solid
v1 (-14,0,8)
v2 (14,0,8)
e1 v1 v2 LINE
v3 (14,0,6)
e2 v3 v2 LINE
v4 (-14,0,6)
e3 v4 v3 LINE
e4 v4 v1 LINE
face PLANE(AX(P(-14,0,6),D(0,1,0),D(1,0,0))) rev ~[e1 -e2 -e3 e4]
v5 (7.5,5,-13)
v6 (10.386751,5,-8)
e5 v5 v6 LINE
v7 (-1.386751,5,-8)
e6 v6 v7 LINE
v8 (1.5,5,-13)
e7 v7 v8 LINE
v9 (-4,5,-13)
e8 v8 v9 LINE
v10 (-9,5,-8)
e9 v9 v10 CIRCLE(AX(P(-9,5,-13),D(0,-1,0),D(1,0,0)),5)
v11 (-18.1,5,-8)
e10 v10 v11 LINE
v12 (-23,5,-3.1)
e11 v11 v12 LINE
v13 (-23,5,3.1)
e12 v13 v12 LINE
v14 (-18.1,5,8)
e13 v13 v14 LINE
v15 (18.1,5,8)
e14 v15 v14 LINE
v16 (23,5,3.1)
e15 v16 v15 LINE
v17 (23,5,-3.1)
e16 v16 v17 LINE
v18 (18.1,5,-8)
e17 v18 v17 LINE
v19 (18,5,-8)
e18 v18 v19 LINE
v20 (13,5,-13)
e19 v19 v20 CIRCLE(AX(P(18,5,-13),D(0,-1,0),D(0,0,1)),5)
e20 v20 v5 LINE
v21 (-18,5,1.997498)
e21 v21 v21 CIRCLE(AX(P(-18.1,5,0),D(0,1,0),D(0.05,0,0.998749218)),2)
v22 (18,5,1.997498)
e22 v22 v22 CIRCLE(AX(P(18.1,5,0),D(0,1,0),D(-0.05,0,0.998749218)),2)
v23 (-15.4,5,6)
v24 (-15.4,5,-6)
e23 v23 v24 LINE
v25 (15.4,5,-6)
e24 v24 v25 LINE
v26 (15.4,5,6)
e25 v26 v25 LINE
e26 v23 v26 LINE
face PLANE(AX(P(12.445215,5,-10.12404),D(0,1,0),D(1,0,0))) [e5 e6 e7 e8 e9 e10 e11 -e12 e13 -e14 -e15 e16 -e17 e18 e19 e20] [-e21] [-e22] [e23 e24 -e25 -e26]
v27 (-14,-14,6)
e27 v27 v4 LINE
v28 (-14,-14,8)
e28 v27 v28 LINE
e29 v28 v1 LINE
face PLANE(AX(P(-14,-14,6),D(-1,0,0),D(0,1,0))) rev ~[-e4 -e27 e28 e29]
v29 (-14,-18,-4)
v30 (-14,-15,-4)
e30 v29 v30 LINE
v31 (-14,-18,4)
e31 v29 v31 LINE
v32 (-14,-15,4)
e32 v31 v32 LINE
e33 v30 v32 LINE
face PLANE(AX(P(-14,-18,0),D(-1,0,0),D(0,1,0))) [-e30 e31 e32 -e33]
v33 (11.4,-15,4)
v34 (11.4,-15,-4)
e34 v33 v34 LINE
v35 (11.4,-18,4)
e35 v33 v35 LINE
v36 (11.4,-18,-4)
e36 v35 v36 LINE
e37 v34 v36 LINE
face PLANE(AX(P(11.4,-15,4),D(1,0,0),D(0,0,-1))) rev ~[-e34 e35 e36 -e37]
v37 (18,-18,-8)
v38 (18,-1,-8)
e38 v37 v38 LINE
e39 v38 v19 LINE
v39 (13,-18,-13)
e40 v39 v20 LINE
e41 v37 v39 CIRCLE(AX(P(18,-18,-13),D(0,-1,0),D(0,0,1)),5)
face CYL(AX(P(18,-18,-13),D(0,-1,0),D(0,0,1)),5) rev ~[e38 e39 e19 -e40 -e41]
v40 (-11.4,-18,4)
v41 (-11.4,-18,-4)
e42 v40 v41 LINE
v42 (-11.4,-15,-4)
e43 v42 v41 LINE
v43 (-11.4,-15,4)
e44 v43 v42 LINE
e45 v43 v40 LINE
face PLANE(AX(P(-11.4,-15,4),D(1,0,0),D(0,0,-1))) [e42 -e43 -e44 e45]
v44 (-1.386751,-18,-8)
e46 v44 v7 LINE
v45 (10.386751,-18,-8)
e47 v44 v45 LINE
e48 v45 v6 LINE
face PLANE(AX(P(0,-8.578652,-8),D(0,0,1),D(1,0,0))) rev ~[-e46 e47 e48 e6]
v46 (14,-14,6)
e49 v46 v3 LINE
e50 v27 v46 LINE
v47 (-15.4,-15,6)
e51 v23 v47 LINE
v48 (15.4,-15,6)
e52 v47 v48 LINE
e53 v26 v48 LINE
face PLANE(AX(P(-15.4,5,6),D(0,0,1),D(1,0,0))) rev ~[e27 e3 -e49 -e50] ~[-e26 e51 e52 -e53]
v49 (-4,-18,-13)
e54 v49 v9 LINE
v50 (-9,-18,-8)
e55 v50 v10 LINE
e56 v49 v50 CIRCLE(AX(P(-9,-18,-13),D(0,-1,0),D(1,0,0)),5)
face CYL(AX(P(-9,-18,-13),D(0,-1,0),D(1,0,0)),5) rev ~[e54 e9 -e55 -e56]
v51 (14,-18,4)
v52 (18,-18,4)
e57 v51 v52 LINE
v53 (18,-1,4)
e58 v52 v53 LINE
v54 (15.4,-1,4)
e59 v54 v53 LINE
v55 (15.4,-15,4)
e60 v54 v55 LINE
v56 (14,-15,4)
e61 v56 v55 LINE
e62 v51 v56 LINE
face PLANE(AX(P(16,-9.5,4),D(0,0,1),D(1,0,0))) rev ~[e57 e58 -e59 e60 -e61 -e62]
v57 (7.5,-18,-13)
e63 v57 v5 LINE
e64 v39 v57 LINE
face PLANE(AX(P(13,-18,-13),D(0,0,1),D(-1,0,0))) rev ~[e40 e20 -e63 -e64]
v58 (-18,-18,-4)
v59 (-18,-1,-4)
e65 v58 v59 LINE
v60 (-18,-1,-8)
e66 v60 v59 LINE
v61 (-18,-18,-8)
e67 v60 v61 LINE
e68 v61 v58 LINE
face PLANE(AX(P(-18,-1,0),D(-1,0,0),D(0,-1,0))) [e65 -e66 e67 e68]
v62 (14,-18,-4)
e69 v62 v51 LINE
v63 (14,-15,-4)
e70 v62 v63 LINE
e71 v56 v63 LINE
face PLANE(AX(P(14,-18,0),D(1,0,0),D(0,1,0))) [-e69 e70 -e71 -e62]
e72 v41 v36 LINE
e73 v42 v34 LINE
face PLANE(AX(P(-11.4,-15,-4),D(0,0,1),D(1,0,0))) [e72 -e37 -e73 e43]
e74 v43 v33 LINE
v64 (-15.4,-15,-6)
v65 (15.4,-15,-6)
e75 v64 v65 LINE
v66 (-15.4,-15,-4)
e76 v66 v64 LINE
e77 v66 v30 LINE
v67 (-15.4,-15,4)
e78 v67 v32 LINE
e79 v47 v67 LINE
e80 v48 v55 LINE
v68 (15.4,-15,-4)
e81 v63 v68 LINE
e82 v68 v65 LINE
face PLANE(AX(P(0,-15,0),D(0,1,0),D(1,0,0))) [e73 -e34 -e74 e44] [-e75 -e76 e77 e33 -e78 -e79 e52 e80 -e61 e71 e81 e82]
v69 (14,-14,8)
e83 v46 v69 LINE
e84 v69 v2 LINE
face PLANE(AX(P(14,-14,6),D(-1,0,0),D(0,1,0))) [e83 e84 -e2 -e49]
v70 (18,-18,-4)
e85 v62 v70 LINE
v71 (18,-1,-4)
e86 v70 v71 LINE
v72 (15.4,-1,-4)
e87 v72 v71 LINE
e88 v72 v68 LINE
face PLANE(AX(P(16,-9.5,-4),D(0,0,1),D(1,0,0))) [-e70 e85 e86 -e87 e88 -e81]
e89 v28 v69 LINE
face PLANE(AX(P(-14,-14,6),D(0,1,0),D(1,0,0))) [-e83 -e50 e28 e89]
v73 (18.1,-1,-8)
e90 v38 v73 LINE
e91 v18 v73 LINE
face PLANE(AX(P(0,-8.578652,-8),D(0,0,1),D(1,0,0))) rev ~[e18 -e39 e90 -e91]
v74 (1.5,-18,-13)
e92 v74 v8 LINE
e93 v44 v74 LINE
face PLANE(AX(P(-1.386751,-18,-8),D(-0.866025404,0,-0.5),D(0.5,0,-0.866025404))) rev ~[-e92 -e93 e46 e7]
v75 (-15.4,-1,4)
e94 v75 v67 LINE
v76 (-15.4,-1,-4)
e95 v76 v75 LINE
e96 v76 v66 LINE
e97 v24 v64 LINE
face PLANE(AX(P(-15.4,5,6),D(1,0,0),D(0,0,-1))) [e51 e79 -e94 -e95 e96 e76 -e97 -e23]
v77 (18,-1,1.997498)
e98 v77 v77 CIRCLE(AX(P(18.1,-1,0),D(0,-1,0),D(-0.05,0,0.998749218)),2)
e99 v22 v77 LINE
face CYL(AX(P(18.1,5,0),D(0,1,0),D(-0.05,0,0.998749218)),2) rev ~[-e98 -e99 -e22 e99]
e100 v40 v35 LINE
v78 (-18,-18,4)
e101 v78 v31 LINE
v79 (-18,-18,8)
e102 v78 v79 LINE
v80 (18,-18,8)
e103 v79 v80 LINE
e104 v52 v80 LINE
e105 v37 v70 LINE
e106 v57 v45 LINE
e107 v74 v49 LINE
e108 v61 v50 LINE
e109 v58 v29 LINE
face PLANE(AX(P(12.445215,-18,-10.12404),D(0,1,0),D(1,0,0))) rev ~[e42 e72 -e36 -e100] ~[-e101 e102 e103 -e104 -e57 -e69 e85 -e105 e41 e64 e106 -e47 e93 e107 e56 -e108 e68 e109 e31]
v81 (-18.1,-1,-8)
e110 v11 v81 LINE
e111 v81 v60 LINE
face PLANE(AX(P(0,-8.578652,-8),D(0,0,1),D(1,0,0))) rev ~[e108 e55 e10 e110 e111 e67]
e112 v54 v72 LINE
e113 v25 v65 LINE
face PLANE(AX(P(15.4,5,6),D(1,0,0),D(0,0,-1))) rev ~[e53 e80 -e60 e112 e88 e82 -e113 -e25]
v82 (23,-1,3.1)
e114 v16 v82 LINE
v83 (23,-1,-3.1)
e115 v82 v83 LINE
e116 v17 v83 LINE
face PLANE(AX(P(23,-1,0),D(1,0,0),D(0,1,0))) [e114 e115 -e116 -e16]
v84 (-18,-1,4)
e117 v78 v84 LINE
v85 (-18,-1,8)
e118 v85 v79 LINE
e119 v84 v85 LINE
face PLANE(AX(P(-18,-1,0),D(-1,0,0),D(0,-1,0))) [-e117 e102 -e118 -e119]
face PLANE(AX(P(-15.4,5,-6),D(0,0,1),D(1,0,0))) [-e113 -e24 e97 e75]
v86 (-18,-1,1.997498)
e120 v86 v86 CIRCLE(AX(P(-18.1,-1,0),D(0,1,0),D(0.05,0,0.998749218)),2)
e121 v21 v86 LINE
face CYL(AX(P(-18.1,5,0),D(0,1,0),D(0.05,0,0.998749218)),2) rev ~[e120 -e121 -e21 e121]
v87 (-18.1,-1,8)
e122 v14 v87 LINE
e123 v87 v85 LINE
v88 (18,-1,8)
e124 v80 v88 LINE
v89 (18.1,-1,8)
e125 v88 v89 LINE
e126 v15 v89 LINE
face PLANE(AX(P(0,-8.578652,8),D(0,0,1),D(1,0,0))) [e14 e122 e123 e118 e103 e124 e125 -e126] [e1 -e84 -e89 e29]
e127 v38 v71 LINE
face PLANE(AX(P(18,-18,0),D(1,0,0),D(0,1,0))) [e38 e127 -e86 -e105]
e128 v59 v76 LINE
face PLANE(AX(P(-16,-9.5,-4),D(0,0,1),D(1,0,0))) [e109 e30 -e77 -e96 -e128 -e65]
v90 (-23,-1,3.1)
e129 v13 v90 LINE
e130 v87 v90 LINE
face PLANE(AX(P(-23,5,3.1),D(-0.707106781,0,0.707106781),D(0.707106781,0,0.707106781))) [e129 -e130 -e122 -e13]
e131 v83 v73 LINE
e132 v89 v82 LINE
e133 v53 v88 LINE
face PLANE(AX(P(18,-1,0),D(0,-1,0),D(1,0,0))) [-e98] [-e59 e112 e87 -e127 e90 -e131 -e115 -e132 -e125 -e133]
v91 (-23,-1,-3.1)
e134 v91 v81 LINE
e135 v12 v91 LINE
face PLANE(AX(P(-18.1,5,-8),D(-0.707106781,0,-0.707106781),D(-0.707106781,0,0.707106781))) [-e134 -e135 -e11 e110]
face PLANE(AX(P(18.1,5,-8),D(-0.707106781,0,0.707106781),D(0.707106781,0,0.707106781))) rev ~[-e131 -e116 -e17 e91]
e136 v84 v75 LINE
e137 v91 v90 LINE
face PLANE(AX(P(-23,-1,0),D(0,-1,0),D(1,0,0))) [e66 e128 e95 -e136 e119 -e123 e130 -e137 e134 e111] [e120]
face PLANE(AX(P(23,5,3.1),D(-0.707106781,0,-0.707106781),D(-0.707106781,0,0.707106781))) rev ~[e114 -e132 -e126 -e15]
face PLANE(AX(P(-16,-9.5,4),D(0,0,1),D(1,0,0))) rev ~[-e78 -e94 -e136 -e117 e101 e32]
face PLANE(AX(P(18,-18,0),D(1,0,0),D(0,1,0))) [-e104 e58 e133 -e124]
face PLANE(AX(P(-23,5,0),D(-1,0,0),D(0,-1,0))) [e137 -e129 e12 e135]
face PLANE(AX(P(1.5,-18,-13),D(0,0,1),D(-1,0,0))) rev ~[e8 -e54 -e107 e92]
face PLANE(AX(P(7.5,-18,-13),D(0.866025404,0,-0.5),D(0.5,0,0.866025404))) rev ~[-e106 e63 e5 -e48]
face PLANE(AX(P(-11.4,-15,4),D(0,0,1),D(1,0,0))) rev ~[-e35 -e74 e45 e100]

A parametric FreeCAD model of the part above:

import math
import FreeCAD as App
import Part
import Sketcher
Q = App.Units.Quantity


def add_polygon(sketch, points):
    """Adds a closed chain of lines whose ends are joined by coincident constraints."""
    first, n = sketch.GeometryCount, len(points)
    for a, b in zip(points, points[1:] + points[:1]):
        sketch.addGeometry(Part.LineSegment(App.Vector(*a, 0), App.Vector(*b, 0)), False)
    for i in range(n):
        sketch.addConstraint(Sketcher.Constraint("Coincident", first + i, 2, first + (i + 1) % n, 1))

doc = App.newDocument("Part")
body = doc.addObject("PartDesign::Body", "Body")

# Sketch on XY plane
sketch1 = body.newObject("Sketcher::SketchObject", "Sketch")
sketch1.AttachmentSupport = (doc.getObject("XY_Plane"), [""])
sketch1.MapMode = "FlatFace"
add_polygon(sketch1, [(-23, 5), (-23, -1), (-18, -1), (-18, -18), (18, -18), (18, -1), (23, -1), (23, 5)])  # lines 0-7
sketch1.addConstraint(Sketcher.Constraint("Vertical", 0))
sketch1.addConstraint(Sketcher.Constraint("Horizontal", 1))
sketch1.addConstraint(Sketcher.Constraint("Vertical", 2))
sketch1.addConstraint(Sketcher.Constraint("Horizontal", 3))
sketch1.addConstraint(Sketcher.Constraint("Vertical", 4))
sketch1.addConstraint(Sketcher.Constraint("Horizontal", 5))
sketch1.addConstraint(Sketcher.Constraint("Vertical", 6))
sketch1.addConstraint(Sketcher.Constraint("Horizontal", 7))
sketch1.addConstraint(Sketcher.Constraint("Symmetric", 1, 2, 4, 2, -2))
sketch1.addConstraint(Sketcher.Constraint("Equal", 1, 5))
sketch1.addConstraint(Sketcher.Constraint("DistanceX", 1, 1, 1, 2, Q("5 mm")))
sketch1.addConstraint(Sketcher.Constraint("DistanceX", 3, 1, 3, 2, Q("36 mm")))
sketch1.addConstraint(Sketcher.Constraint("DistanceY", 0, 2, 0, 1, Q("6 mm")))
sketch1.addConstraint(Sketcher.Constraint("DistanceY", 2, 2, 2, 1, Q("17 mm")))
sketch1.addConstraint(Sketcher.Constraint("DistanceY", 0, 2, -1, 1, Q("1 mm")))
pad1 = body.newObject("PartDesign::Pad", "Pad")
pad1.Profile = sketch1
pad1.Length = 16
pad1.Midplane = True

# Sketch on XZ plane
sketch2 = body.newObject("Sketcher::SketchObject", "Sketch001")
sketch2.AttachmentSupport = (doc.getObject("XZ_Plane"), [""])
sketch2.MapMode = "FlatFace"
sketch2.AttachmentOffset = App.Placement(App.Vector(0, 0, -5), App.Rotation())
add_polygon(sketch2, [(-23, 3.1), (-23, 8), (-18.1, 8)])  # lines 0-2
sketch2.addGeometry(Part.Circle(App.Vector(-18.1, 0, 0), App.Vector(0, 0, 1), 2), False)  # 3
add_polygon(sketch2, [(-18.1, -8), (-23, -8), (-23, -3.1)])  # lines 4-6
add_polygon(sketch2, [(-15.4, -6), (-15.4, 6), (15.4, 6), (15.4, -6)])  # lines 7-10
add_polygon(sketch2, [(23, -3.1), (23, -8), (18.1, -8)])  # lines 11-13
sketch2.addGeometry(Part.Circle(App.Vector(18.1, 0, 0), App.Vector(0, 0, 1), 2), False)  # 14
add_polygon(sketch2, [(18.1, 8), (23, 8), (23, 3.1)])  # lines 15-17
sketch2.addConstraint(Sketcher.Constraint("Vertical", 0))
sketch2.addConstraint(Sketcher.Constraint("Horizontal", 1))
sketch2.addConstraint(Sketcher.Constraint("Horizontal", 4))
sketch2.addConstraint(Sketcher.Constraint("Vertical", 5))
sketch2.addConstraint(Sketcher.Constraint("Vertical", 7))
sketch2.addConstraint(Sketcher.Constraint("Horizontal", 8))
sketch2.addConstraint(Sketcher.Constraint("Vertical", 9))
sketch2.addConstraint(Sketcher.Constraint("Horizontal", 10))
sketch2.addConstraint(Sketcher.Constraint("Vertical", 11))
sketch2.addConstraint(Sketcher.Constraint("Horizontal", 12))
sketch2.addConstraint(Sketcher.Constraint("Horizontal", 15))
sketch2.addConstraint(Sketcher.Constraint("Vertical", 16))
sketch2.addConstraint(Sketcher.Constraint("Equal", 3, 14))
sketch2.addConstraint(Sketcher.Constraint("Symmetric", 3, 3, 14, 3, -1, 1))
sketch2.addConstraint(Sketcher.Constraint("Symmetric", 7, 2, 9, 2, -1, 1))
sketch2.addConstraint(Sketcher.Constraint("Symmetric", 0, 2, 11, 2, -1, 1))
sketch2.addConstraint(Sketcher.Constraint("Symmetric", 4, 2, 15, 2, -1, 1))
sketch2.addConstraint(Sketcher.Constraint("Symmetric", 4, 2, 11, 2, -2))
sketch2.addConstraint(Sketcher.Constraint("PointOnObject", 3, 3, -1))
sketch2.addConstraint(Sketcher.Constraint("Perpendicular", 2, 6))
sketch2.addConstraint(Sketcher.Constraint("Perpendicular", 6, 13))
sketch2.addConstraint(Sketcher.Constraint("Perpendicular", 13, 17))
sketch2.addConstraint(Sketcher.Constraint("Horizontal", 5, 2, 13, 2))
sketch2.addConstraint(Sketcher.Constraint("Horizontal", 2, 2, 16, 2))
sketch2.addConstraint(Sketcher.Constraint("Vertical", 3, 3, 1, 2))
sketch2.addConstraint(Sketcher.Constraint("Vertical", 1, 2, 6, 2))
sketch2.addConstraint(Sketcher.Constraint("Vertical", 14, 3, 12, 2))
sketch2.addConstraint(Sketcher.Constraint("Diameter", 3, Q("4 mm")))
sketch2.addConstraint(Sketcher.Constraint("DistanceY", 7, 1, 7, 2, Q("12 mm")))
sketch2.addConstraint(Sketcher.Constraint("DistanceX", 1, 1, 1, 2, Q("4.9 mm")))
sketch2.addConstraint(Sketcher.Constraint("DistanceX", 8, 1, 8, 2, Q("30.8 mm")))
sketch2.addConstraint(Sketcher.Constraint("DistanceX", 0, 2, -1, 1, Q("23 mm")))
sketch2.addConstraint(Sketcher.Constraint("DistanceY", -1, 1, 0, 2, Q("8 mm")))
pocket1 = body.newObject("PartDesign::Pocket", "Pocket")
pocket1.Profile = sketch2
pocket1.Length = 20
pocket1.Reversed = True

# Sketch on XY plane
sketch3 = body.newObject("Sketcher::SketchObject", "Sketch002")
sketch3.AttachmentSupport = (doc.getObject("XY_Plane"), [""])
sketch3.MapMode = "FlatFace"
sketch3.AttachmentOffset = App.Placement(App.Vector(0, 0, 6), App.Rotation())
add_polygon(sketch3, [(-14, 0), (-14, -14), (14, -14), (14, 0)])  # lines 0-3
sketch3.addConstraint(Sketcher.Constraint("Vertical", 0))
sketch3.addConstraint(Sketcher.Constraint("Horizontal", 1))
sketch3.addConstraint(Sketcher.Constraint("Vertical", 2))
sketch3.addConstraint(Sketcher.Constraint("Horizontal", 3))
sketch3.addConstraint(Sketcher.Constraint("Symmetric", 2, 2, 3, 2, -1, 1))
sketch3.addConstraint(Sketcher.Constraint("DistanceX", 1, 1, 1, 2, Q("28 mm")))
sketch3.addConstraint(Sketcher.Constraint("DistanceY", 0, 2, 0, 1, Q("14 mm")))
pocket2 = body.newObject("PartDesign::Pocket", "Pocket001")
pocket2.Profile = sketch3
pocket2.Length = 2
pocket2.Reversed = True

# Sketch on XY plane
sketch4 = body.newObject("Sketcher::SketchObject", "Sketch003")
sketch4.AttachmentSupport = (doc.getObject("XY_Plane"), [""])
sketch4.MapMode = "FlatFace"
add_polygon(sketch4, [(-18, -1), (-18, -18), (-14, -18), (-14, -1)])  # lines 0-3
add_polygon(sketch4, [(14, -1), (14, -18), (18, -18), (18, -1)])  # lines 4-7
sketch4.addConstraint(Sketcher.Constraint("Vertical", 0))
sketch4.addConstraint(Sketcher.Constraint("Horizontal", 1))
sketch4.addConstraint(Sketcher.Constraint("Vertical", 2))
sketch4.addConstraint(Sketcher.Constraint("Horizontal", 3))
sketch4.addConstraint(Sketcher.Constraint("Vertical", 4))
sketch4.addConstraint(Sketcher.Constraint("Horizontal", 5))
sketch4.addConstraint(Sketcher.Constraint("Vertical", 6))
sketch4.addConstraint(Sketcher.Constraint("Horizontal", 7))
sketch4.addConstraint(Sketcher.Constraint("Symmetric", 1, 2, 4, 2, -2))
sketch4.addConstraint(Sketcher.Constraint("Symmetric", 3, 2, 6, 2, -2))
sketch4.addConstraint(Sketcher.Constraint("DistanceX", 1, 1, 1, 2, Q("4 mm")))
sketch4.addConstraint(Sketcher.Constraint("DistanceY", 0, 2, 0, 1, Q("17 mm")))
sketch4.addConstraint(Sketcher.Constraint("DistanceX", 0, 2, -1, 1, Q("18 mm")))
sketch4.addConstraint(Sketcher.Constraint("DistanceY", 0, 2, -1, 1, Q("18 mm")))
pocket3 = body.newObject("PartDesign::Pocket", "Pocket002")
pocket3.Profile = sketch4
pocket3.Length = 8
pocket3.Midplane = True

# Sketch on XZ plane
sketch5 = body.newObject("Sketcher::SketchObject", "Sketch004")
sketch5.AttachmentSupport = (doc.getObject("XZ_Plane"), [""])
sketch5.MapMode = "FlatFace"
sketch5.AttachmentOffset = App.Placement(App.Vector(0, 0, 15), App.Rotation())
add_polygon(sketch5, [(-11, -4), (-11, 4), (11, 4), (11, -4)])  # lines 0-3
sketch5.addConstraint(Sketcher.Constraint("Vertical", 0))
sketch5.addConstraint(Sketcher.Constraint("Horizontal", 1))
sketch5.addConstraint(Sketcher.Constraint("Vertical", 2))
sketch5.addConstraint(Sketcher.Constraint("Horizontal", 3))
sketch5.addConstraint(Sketcher.Constraint("Symmetric", 0, 2, 2, 2, -1, 1))
sketch5.addConstraint(Sketcher.Constraint("DistanceY", 0, 1, 0, 2, Q("8 mm")))
sketch5.addConstraint(Sketcher.Constraint("DistanceX", 1, 1, 1, 2, Q("22.8 mm")))
pocket4 = body.newObject("PartDesign::Pocket", "Pocket003")
pocket4.Profile = sketch5
pocket4.Length = 3
pocket4.Reversed = True

# Sketch on XZ plane
sketch6 = body.newObject("Sketcher::SketchObject", "Sketch005")
sketch6.AttachmentSupport = (doc.getObject("XZ_Plane"), [""])
sketch6.MapMode = "FlatFace"
sketch6.AttachmentOffset = App.Placement(App.Vector(0, 0, 18), App.Rotation())
sketch6.addGeometry(Part.LineSegment(App.Vector(10, -8, 0), App.Vector(18, -8, 0)), False)
sketch6.addGeometry(Part.ArcOfCircle(Part.Circle(App.Vector(18, -13, 0), App.Vector(0, 0, 1), 5), math.radians(90), math.radians(180)), False)
sketch6.addGeometry(Part.LineSegment(App.Vector(13, -13, 0), App.Vector(8, -13, 0)), False)
sketch6.addGeometry(Part.LineSegment(App.Vector(8, -13, 0), App.Vector(10, -8, 0)), False)
sketch6.addGeometry(Part.LineSegment(App.Vector(-9, -8, 0), App.Vector(-1, -8, 0)), False)
sketch6.addGeometry(Part.LineSegment(App.Vector(-1, -8, 0), App.Vector(2, -13, 0)), False)
sketch6.addGeometry(Part.LineSegment(App.Vector(2, -13, 0), App.Vector(-4, -13, 0)), False)
sketch6.addGeometry(Part.ArcOfCircle(Part.Circle(App.Vector(-9, -13, 0), App.Vector(0, 0, 1), 5), math.radians(0), math.radians(90)), False)
sketch6.addConstraint(Sketcher.Constraint("Tangent", 0, 2, 1, 1))
sketch6.addConstraint(Sketcher.Constraint("Coincident", 1, 2, 2, 1))
sketch6.addConstraint(Sketcher.Constraint("Coincident", 2, 2, 3, 1))
sketch6.addConstraint(Sketcher.Constraint("Coincident", 3, 2, 0, 1))
sketch6.addConstraint(Sketcher.Constraint("Coincident", 4, 2, 5, 1))
sketch6.addConstraint(Sketcher.Constraint("Coincident", 5, 2, 6, 1))
sketch6.addConstraint(Sketcher.Constraint("Coincident", 6, 2, 7, 1))
sketch6.addConstraint(Sketcher.Constraint("Tangent", 7, 2, 4, 1))
sketch6.addConstraint(Sketcher.Constraint("Horizontal", 0))
sketch6.addConstraint(Sketcher.Constraint("Horizontal", 2))
sketch6.addConstraint(Sketcher.Constraint("Horizontal", 4))
sketch6.addConstraint(Sketcher.Constraint("Horizontal", 6))
sketch6.addConstraint(Sketcher.Constraint("Equal", 1, 7))
sketch6.addConstraint(Sketcher.Constraint("Horizontal", 1, 3, 7, 3))
sketch6.addConstraint(Sketcher.Constraint("Horizontal", 7, 3, 1, 2))
sketch6.addConstraint(Sketcher.Constraint("Horizontal", 2, 2, 5, 2))
sketch6.addConstraint(Sketcher.Constraint("Equal", 0, 4))
sketch6.addConstraint(Sketcher.Constraint("Equal", 2, 6))
sketch6.addConstraint(Sketcher.Constraint("Radius", 1, Q("5 mm")))
sketch6.addConstraint(Sketcher.Constraint("Angle", 3, Q("60 deg")))
sketch6.addConstraint(Sketcher.Constraint("DistanceX", 2, 2, 2, 1, Q("5.5 mm")))
sketch6.addConstraint(Sketcher.Constraint("DistanceX", -1, 1, 1, 3, Q("18 mm")))
sketch6.addConstraint(Sketcher.Constraint("DistanceY", 1, 3, -1, 1, Q("13 mm")))
sketch6.addConstraint(Sketcher.Constraint("DistanceX", 7, 3, -1, 1, Q("9 mm")))
pad2 = body.newObject("PartDesign::Pad", "Pad001")
pad2.Profile = sketch6
pad2.Length = 23
pad2.Reversed = True

doc.recompute()
